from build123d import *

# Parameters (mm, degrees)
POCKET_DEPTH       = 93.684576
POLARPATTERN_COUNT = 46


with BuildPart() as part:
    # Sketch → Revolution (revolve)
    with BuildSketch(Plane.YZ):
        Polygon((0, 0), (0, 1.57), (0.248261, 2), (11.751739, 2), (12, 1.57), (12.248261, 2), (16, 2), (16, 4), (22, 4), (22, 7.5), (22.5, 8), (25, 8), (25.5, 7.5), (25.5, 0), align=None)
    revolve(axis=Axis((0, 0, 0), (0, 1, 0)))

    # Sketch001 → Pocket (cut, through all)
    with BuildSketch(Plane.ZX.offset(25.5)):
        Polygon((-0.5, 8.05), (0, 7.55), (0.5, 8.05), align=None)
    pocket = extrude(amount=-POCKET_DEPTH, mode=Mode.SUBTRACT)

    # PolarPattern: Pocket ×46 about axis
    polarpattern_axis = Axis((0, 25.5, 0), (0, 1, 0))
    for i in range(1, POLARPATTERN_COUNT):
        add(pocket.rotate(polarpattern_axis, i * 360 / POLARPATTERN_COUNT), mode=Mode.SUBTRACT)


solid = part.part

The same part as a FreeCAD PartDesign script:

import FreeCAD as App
import Part
import Sketcher
Q = App.Units.Quantity


def add_polygon(sketch, points):
    """Adds a closed chain of lines whose ends are joined by coincident constraints."""
    first, n = sketch.GeometryCount, len(points)
    for a, b in zip(points, points[1:] + points[:1]):
        sketch.addGeometry(Part.LineSegment(App.Vector(*a, 0), App.Vector(*b, 0)), False)
    for i in range(n):
        sketch.addConstraint(Sketcher.Constraint("Coincident", first + i, 2, first + (i + 1) % n, 1))

doc = App.newDocument("Part")
body = doc.addObject("PartDesign::Body", "Body")

# Sketch on YZ plane
sketch1 = body.newObject("Sketcher::SketchObject", "Sketch")
sketch1.AttachmentSupport = (doc.getObject("YZ_Plane"), [""])
sketch1.MapMode = "FlatFace"
add_polygon(sketch1, [(0, 1.57), (0, 0), (25.5, 0), (25.5, 7.5), (25, 8), (22.5, 8), (22, 7.5), (22, 4), (16, 4), (16, 2), (12.248261, 2), (12, 1.57), (11.751739, 2), (0.248261, 2)])  # lines 0-13
sketch1.addConstraint(Sketcher.Constraint("Vertical", 0))
sketch1.addConstraint(Sketcher.Constraint("Horizontal", 1))
sketch1.addConstraint(Sketcher.Constraint("Vertical", 2))
sketch1.addConstraint(Sketcher.Constraint("Horizontal", 4))
sketch1.addConstraint(Sketcher.Constraint("Vertical", 6))
sketch1.addConstraint(Sketcher.Constraint("Horizontal", 7))
sketch1.addConstraint(Sketcher.Constraint("Vertical", 8))
sketch1.addConstraint(Sketcher.Constraint("Horizontal", 9))
sketch1.addConstraint(Sketcher.Constraint("Horizontal", 12))
sketch1.addConstraint(Sketcher.Constraint("Coincident", 0, 2, -1, 1))
sketch1.addConstraint(Sketcher.Constraint("Perpendicular", 3, 5))
sketch1.addConstraint(Sketcher.Constraint("Parallel", 10, 13))
sketch1.addConstraint(Sketcher.Constraint("Horizontal", 2, 2, 5, 2))
sketch1.addConstraint(Sketcher.Constraint("Horizontal", 9, 2, 11, 2))
sketch1.addConstraint(Sketcher.Constraint("Horizontal", 10, 2, 13, 2))
sketch1.addConstraint(Sketcher.Constraint("Equal", 3, 5))
sketch1.addConstraint(Sketcher.Constraint("Equal", 10, 11))
sketch1.addConstraint(Sketcher.Constraint("DistanceX", 7, 2, 7, 1, Q("6 mm")))
sketch1.addConstraint(Sketcher.Constraint("DistanceY", 8, 2, 8, 1, Q("2 mm")))
sketch1.addConstraint(Sketcher.Constraint("DistanceX", 1, 1, 1, 2, Q("25.5 mm")))
sketch1.addConstraint(Sketcher.Constraint("DistanceX", 4, 2, 4, 1, Q("2.5 mm")))
sketch1.addConstraint(Sketcher.Constraint("DistanceY", 2, 1, 2, 2, Q("7.5 mm")))
sketch1.addConstraint(Sketcher.Constraint("DistanceY", 6, 2, 6, 1, Q("3.5 mm")))
sketch1.addConstraint(Sketcher.Constraint("DistanceX", -1, 1, 3, 2, Q("25 mm")))
sketch1.addConstraint(Sketcher.Constraint("DistanceX", -1, 1, 10, 2, Q("12 mm")))
sketch1.addConstraint(Sketcher.Constraint("DistanceY", 0, 2, 0, 1, Q("1.57 mm")))
sketch1.addConstraint(Sketcher.Constraint("DistanceX", 9, 2, 9, 1, Q("3.751739 mm")))
revolution = body.newObject("PartDesign::Revolution", "Revolution")
revolution.Profile = sketch1
revolution.ReferenceAxis = (sketch1, ["H_Axis"])
revolution.Angle = 360

# Sketch on XZ plane
sketch2 = body.newObject("Sketcher::SketchObject", "Sketch001")
sketch2.AttachmentSupport = (doc.getObject("XZ_Plane"), [""])
sketch2.MapMode = "FlatFace"
sketch2.AttachmentOffset = App.Placement(App.Vector(0, 0, -25.5), App.Rotation())
add_polygon(sketch2, [(8.05, -0.5), (7.55, 0), (8.05, 0.5)])  # lines 0-2
sketch2.addConstraint(Sketcher.Constraint("Vertical", 2))
sketch2.addConstraint(Sketcher.Constraint("PointOnObject", 0, 2, -1))
sketch2.addConstraint(Sketcher.Constraint("Perpendicular", 0, 1))
sketch2.addConstraint(Sketcher.Constraint("Equal", 0, 1))
sketch2.addConstraint(Sketcher.Constraint("DistanceY", 2, 2, 2, 1, Q("1 mm")))
sketch2.addConstraint(Sketcher.Constraint("DistanceX", -1, 1, 0, 2, Q("7.55 mm")))
pocket1 = body.newObject("PartDesign::Pocket", "Pocket")
pocket1.Profile = sketch2
pocket1.Type = "ThroughAll"
pocket1.Reversed = True
doc.recompute()

polarpattern = body.newObject("PartDesign::PolarPattern", "PolarPattern")
polarpattern.Originals = [pocket1]
polarpattern.Axis = (doc.getObject("Y_Axis"), [""])
polarpattern.Angle = 360
polarpattern.Occurrences = 46
body.Tip = polarpattern

doc.recompute()
